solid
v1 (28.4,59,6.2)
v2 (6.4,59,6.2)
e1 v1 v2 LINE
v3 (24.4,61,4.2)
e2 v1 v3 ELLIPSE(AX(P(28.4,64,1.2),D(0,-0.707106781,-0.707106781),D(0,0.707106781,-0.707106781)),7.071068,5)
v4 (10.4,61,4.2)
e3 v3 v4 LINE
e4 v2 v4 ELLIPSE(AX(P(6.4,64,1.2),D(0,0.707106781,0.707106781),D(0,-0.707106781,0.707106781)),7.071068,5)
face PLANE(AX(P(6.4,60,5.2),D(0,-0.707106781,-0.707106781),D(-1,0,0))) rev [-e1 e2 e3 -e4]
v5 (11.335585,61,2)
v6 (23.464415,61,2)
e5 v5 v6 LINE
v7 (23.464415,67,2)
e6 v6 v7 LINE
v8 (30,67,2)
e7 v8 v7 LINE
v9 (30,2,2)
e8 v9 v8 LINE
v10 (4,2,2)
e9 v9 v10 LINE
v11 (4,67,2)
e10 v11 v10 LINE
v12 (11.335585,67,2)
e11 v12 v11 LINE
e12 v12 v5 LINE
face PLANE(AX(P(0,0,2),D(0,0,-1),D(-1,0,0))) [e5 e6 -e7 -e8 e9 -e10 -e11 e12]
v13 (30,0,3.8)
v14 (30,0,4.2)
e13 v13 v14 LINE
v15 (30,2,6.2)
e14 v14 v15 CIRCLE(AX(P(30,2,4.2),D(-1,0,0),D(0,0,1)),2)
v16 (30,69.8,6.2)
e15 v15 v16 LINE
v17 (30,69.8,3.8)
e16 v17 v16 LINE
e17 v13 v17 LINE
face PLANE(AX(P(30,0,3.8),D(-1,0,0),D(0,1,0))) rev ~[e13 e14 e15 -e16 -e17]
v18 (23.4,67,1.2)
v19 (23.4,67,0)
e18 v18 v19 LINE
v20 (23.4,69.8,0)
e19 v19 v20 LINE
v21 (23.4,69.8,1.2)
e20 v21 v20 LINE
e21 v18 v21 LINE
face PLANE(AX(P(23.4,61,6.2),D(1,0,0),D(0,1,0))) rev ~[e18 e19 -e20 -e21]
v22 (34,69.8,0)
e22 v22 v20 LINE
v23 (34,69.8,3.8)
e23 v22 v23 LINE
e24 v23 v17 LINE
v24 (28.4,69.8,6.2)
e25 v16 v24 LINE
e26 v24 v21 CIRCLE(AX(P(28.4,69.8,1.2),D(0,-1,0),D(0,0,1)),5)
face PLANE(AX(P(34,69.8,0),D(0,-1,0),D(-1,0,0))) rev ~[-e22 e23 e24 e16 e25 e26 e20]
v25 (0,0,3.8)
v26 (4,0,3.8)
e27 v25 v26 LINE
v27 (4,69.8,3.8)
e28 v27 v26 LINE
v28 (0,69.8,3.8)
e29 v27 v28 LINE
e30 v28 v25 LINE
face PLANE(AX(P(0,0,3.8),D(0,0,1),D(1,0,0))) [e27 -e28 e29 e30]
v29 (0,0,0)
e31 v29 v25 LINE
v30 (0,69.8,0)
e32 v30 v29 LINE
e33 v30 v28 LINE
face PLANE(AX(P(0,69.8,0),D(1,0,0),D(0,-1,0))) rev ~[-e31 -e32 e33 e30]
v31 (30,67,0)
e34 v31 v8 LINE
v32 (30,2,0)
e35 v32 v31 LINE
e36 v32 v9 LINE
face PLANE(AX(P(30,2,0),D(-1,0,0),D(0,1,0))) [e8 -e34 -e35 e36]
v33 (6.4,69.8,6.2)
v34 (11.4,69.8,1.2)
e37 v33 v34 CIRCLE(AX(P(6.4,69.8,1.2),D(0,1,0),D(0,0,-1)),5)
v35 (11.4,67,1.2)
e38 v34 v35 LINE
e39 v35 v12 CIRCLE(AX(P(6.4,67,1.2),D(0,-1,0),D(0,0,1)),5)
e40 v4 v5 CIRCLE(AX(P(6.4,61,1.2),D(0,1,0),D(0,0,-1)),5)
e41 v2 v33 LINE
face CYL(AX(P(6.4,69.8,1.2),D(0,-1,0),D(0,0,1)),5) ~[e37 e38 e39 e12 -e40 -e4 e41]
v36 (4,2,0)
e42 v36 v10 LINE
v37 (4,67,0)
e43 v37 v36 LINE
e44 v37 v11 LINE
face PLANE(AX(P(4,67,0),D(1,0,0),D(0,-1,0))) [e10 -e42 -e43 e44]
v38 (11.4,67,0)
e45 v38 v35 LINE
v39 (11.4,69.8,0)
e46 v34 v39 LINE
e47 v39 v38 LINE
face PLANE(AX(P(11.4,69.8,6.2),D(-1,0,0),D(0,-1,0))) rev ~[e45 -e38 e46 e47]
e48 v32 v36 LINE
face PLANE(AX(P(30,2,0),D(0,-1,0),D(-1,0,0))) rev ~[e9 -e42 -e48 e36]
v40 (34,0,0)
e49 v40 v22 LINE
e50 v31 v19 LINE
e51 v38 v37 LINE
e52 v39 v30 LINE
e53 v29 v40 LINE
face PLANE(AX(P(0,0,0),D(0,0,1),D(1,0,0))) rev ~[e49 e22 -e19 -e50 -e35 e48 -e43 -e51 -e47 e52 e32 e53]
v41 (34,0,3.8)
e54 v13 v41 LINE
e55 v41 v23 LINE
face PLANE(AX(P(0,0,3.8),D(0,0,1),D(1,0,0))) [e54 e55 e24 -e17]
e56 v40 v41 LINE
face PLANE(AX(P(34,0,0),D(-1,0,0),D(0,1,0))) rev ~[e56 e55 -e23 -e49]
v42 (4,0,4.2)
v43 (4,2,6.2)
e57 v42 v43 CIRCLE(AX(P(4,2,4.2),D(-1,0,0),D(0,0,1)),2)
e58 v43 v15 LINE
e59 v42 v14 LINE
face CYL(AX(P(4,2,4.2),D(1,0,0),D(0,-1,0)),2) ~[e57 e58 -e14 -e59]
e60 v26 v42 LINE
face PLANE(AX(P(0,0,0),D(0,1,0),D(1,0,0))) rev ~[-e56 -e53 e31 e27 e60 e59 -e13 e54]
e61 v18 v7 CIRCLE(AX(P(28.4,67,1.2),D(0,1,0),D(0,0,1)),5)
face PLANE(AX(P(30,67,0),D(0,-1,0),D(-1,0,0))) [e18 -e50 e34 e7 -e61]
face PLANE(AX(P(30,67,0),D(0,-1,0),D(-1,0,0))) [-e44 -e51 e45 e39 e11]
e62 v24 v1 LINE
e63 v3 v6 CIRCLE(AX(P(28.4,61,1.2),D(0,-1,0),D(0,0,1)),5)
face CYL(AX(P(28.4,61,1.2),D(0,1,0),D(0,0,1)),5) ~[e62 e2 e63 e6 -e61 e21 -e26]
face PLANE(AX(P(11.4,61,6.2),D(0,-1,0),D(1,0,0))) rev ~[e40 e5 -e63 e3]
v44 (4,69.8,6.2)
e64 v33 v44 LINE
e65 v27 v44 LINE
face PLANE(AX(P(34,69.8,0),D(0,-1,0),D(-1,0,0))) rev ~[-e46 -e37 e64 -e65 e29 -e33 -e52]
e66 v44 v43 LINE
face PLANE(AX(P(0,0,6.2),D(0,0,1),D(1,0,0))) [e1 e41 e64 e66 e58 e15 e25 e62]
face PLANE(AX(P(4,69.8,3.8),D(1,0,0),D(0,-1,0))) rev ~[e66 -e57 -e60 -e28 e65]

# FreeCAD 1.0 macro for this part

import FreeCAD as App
import Part
import Sketcher

V = App.Vector
Q = App.Units.Quantity


def edges_at(feature, points):
    """Names of the edges that pass closest to the given points."""
    edges = feature.Shape.Edges
    near = lambda p: min(range(len(edges)), key=lambda i: edges[i].distToShape(Part.Vertex(*p))[0])
    return sorted({f"Edge{near(p) + 1}" for p in points})


def add_polygon(sketch, points):
    """Adds a closed chain of lines whose ends are joined by coincident constraints."""
    first, n = sketch.GeometryCount, len(points)
    for a, b in zip(points, points[1:] + points[:1]):
        sketch.addGeometry(Part.LineSegment(App.Vector(*a, 0), App.Vector(*b, 0)), False)
    for i in range(n):
        sketch.addConstraint(Sketcher.Constraint("Coincident", first + i, 2, first + (i + 1) % n, 1))

doc = App.newDocument("Part")
params = doc.addObject("Spreadsheet::Sheet", "Params")
for row, (alias, value) in enumerate([
    ("sketch1_width", "34 mm"),
    ("sketch1_height", "69.8 mm"),
    ("pad1_length", "3.8 mm"),
    ("sketch2_width", "26 mm"),
    ("sketch2_height", "69.8 mm"),
    ("pad2_length", "2.4 mm"),
    ("sketch3_width", "12 mm"),
    ("sketch3_height", "8.8 mm"),
    ("pocket1_length", "8 mm"),
    ("fillet_radius", "2 mm"),
    ("fillet2_radius", "5 mm"),
    ("chamfer_size", "2 mm"),
    ("sketch4_width", "26 mm"),
    ("sketch4_height", "65 mm"),
    ("pocket2_length", "2 mm"),
], start=1):
    params.set(f"A{row}", alias)
    params.set(f"B{row}", "=" + value)
    params.setAlias(f"B{row}", alias)

body = doc.addObject("PartDesign::Body", "Body")

sketch1 = body.newObject("Sketcher::SketchObject", "Sketch")
sketch1.AttachmentSupport = (doc.getObject("XY_Plane"), [""])
sketch1.MapMode = "FlatFace"
add_polygon(sketch1, [(0, 69.8), (0, 0), (34, 0), (34, 69.8)])
sketch1.addConstraint([
    Sketcher.Constraint("Vertical", 0),
    Sketcher.Constraint("Horizontal", 1),
    Sketcher.Constraint("Vertical", 2),
    Sketcher.Constraint("Horizontal", 3),
    Sketcher.Constraint("Coincident", 0, 2, -1, 1),
    Sketcher.Constraint("DistanceX", 1, 1, 1, 2, Q("34 mm")),
    Sketcher.Constraint("DistanceY", 0, 2, 0, 1, Q("69.8 mm")),
])
sketch1.setExpression("Constraints[9]", "Params.sketch1_width")
sketch1.setExpression("Constraints[10]", "Params.sketch1_height")
pad1 = body.newObject("PartDesign::Pad", "Pad")
pad1.Profile = sketch1
pad1.setExpression("Length", "Params.pad1_length")

sketch2 = body.newObject("Sketcher::SketchObject", "Sketch001")
sketch2.AttachmentSupport = (doc.getObject("XY_Plane"), [""])
sketch2.MapMode = "FlatFace"
sketch2.AttachmentOffset = App.Placement(V(0, 0, 3.8), App.Rotation())
add_polygon(sketch2, [(30, 0), (30, 69.8), (4, 69.8), (4, 0)])
sketch2.addConstraint([
    Sketcher.Constraint("Vertical", 0),
    Sketcher.Constraint("Horizontal", 1),
    Sketcher.Constraint("Vertical", 2),
    Sketcher.Constraint("Horizontal", 3),
    Sketcher.Constraint("PointOnObject", 2, 2, -1),
    Sketcher.Constraint("DistanceX", 1, 2, 1, 1, Q("26 mm")),
    Sketcher.Constraint("DistanceX", -1, 1, 1, 2, Q("4 mm")),
    Sketcher.Constraint("DistanceY", 0, 1, 0, 2, Q("69.8 mm")),
])
sketch2.setExpression("Constraints[9]", "Params.sketch2_width")
sketch2.setExpression("Constraints[11]", "Params.sketch2_height")
pad2 = body.newObject("PartDesign::Pad", "Pad001")
pad2.Profile = sketch2
pad2.setExpression("Length", "Params.pad2_length")

sketch3 = body.newObject("Sketcher::SketchObject", "Sketch002")
sketch3.AttachmentSupport = (doc.getObject("XY_Plane"), [""])
sketch3.MapMode = "FlatFace"
sketch3.AttachmentOffset = App.Placement(V(0, 0, 6.2), App.Rotation())
add_polygon(sketch3, [(23.4, 61), (23.4, 69.8), (11.4, 69.8), (11.4, 61)])
sketch3.addConstraint([
    Sketcher.Constraint("Vertical", 0),
    Sketcher.Constraint("Horizontal", 1),
    Sketcher.Constraint("Vertical", 2),
    Sketcher.Constraint("Horizontal", 3),
    Sketcher.Constraint("DistanceX", 1, 2, 1, 1, Q("12 mm")),
    Sketcher.Constraint("DistanceY", 0, 1, 0, 2, Q("8.8 mm")),
    Sketcher.Constraint("DistanceY", -1, 1, 2, 2, Q("61 mm")),
    Sketcher.Constraint("DistanceX", -1, 1, 0, 2, Q("23.4 mm")),
])
sketch3.setExpression("Constraints[8]", "Params.sketch3_width")
sketch3.setExpression("Constraints[9]", "Params.sketch3_height")
pocket1 = body.newObject("PartDesign::Pocket", "Pocket")
pocket1.Profile = sketch3
pocket1.setExpression("Length", "Params.pocket1_length")
doc.recompute()

fillet = body.newObject("PartDesign::Fillet", "Fillet")
fillet.Base = (pocket1, edges_at(pocket1, [(17, 0, 6.2)]))
fillet.setExpression("Radius", "Params.fillet_radius")
doc.recompute()

fillet2 = body.newObject("PartDesign::Fillet", "Fillet001")
fillet2.Base = (fillet, edges_at(fillet, [(11.4, 65.4, 6.2), (23.4, 65.4, 6.2)]))
fillet2.setExpression("Radius", "Params.fillet2_radius")
doc.recompute()

chamfer = body.newObject("PartDesign::Chamfer", "Chamfer")
chamfer.Base = (fillet2, edges_at(fillet2, [(17.4, 61, 6.2)]))
chamfer.setExpression("Size", "Params.chamfer_size")

sketch4 = body.newObject("Sketcher::SketchObject", "Sketch003")
sketch4.AttachmentSupport = (doc.getObject("XY_Plane"), [""])
sketch4.MapMode = "FlatFace"
add_polygon(sketch4, [(30, 67), (30, 2), (4, 2), (4, 67)])
sketch4.addConstraint([
    Sketcher.Constraint("Vertical", 0),
    Sketcher.Constraint("Horizontal", 1),
    Sketcher.Constraint("Vertical", 2),
    Sketcher.Constraint("Horizontal", 3),
    Sketcher.Constraint("DistanceX", 1, 2, 1, 1, Q("26 mm")),
    Sketcher.Constraint("DistanceY", 0, 2, 0, 1, Q("65 mm")),
    Sketcher.Constraint("DistanceX", -1, 1, 0, 2, Q("30 mm")),
    Sketcher.Constraint("DistanceY", -1, 1, 0, 2, Q("2 mm")),
])
sketch4.setExpression("Constraints[8]", "Params.sketch4_width")
sketch4.setExpression("Constraints[9]", "Params.sketch4_height")
pocket2 = body.newObject("PartDesign::Pocket", "Pocket001")
pocket2.Profile = sketch4
pocket2.setExpression("Length", "Params.pocket2_length")
pocket2.Reversed = True

doc.recompute()
